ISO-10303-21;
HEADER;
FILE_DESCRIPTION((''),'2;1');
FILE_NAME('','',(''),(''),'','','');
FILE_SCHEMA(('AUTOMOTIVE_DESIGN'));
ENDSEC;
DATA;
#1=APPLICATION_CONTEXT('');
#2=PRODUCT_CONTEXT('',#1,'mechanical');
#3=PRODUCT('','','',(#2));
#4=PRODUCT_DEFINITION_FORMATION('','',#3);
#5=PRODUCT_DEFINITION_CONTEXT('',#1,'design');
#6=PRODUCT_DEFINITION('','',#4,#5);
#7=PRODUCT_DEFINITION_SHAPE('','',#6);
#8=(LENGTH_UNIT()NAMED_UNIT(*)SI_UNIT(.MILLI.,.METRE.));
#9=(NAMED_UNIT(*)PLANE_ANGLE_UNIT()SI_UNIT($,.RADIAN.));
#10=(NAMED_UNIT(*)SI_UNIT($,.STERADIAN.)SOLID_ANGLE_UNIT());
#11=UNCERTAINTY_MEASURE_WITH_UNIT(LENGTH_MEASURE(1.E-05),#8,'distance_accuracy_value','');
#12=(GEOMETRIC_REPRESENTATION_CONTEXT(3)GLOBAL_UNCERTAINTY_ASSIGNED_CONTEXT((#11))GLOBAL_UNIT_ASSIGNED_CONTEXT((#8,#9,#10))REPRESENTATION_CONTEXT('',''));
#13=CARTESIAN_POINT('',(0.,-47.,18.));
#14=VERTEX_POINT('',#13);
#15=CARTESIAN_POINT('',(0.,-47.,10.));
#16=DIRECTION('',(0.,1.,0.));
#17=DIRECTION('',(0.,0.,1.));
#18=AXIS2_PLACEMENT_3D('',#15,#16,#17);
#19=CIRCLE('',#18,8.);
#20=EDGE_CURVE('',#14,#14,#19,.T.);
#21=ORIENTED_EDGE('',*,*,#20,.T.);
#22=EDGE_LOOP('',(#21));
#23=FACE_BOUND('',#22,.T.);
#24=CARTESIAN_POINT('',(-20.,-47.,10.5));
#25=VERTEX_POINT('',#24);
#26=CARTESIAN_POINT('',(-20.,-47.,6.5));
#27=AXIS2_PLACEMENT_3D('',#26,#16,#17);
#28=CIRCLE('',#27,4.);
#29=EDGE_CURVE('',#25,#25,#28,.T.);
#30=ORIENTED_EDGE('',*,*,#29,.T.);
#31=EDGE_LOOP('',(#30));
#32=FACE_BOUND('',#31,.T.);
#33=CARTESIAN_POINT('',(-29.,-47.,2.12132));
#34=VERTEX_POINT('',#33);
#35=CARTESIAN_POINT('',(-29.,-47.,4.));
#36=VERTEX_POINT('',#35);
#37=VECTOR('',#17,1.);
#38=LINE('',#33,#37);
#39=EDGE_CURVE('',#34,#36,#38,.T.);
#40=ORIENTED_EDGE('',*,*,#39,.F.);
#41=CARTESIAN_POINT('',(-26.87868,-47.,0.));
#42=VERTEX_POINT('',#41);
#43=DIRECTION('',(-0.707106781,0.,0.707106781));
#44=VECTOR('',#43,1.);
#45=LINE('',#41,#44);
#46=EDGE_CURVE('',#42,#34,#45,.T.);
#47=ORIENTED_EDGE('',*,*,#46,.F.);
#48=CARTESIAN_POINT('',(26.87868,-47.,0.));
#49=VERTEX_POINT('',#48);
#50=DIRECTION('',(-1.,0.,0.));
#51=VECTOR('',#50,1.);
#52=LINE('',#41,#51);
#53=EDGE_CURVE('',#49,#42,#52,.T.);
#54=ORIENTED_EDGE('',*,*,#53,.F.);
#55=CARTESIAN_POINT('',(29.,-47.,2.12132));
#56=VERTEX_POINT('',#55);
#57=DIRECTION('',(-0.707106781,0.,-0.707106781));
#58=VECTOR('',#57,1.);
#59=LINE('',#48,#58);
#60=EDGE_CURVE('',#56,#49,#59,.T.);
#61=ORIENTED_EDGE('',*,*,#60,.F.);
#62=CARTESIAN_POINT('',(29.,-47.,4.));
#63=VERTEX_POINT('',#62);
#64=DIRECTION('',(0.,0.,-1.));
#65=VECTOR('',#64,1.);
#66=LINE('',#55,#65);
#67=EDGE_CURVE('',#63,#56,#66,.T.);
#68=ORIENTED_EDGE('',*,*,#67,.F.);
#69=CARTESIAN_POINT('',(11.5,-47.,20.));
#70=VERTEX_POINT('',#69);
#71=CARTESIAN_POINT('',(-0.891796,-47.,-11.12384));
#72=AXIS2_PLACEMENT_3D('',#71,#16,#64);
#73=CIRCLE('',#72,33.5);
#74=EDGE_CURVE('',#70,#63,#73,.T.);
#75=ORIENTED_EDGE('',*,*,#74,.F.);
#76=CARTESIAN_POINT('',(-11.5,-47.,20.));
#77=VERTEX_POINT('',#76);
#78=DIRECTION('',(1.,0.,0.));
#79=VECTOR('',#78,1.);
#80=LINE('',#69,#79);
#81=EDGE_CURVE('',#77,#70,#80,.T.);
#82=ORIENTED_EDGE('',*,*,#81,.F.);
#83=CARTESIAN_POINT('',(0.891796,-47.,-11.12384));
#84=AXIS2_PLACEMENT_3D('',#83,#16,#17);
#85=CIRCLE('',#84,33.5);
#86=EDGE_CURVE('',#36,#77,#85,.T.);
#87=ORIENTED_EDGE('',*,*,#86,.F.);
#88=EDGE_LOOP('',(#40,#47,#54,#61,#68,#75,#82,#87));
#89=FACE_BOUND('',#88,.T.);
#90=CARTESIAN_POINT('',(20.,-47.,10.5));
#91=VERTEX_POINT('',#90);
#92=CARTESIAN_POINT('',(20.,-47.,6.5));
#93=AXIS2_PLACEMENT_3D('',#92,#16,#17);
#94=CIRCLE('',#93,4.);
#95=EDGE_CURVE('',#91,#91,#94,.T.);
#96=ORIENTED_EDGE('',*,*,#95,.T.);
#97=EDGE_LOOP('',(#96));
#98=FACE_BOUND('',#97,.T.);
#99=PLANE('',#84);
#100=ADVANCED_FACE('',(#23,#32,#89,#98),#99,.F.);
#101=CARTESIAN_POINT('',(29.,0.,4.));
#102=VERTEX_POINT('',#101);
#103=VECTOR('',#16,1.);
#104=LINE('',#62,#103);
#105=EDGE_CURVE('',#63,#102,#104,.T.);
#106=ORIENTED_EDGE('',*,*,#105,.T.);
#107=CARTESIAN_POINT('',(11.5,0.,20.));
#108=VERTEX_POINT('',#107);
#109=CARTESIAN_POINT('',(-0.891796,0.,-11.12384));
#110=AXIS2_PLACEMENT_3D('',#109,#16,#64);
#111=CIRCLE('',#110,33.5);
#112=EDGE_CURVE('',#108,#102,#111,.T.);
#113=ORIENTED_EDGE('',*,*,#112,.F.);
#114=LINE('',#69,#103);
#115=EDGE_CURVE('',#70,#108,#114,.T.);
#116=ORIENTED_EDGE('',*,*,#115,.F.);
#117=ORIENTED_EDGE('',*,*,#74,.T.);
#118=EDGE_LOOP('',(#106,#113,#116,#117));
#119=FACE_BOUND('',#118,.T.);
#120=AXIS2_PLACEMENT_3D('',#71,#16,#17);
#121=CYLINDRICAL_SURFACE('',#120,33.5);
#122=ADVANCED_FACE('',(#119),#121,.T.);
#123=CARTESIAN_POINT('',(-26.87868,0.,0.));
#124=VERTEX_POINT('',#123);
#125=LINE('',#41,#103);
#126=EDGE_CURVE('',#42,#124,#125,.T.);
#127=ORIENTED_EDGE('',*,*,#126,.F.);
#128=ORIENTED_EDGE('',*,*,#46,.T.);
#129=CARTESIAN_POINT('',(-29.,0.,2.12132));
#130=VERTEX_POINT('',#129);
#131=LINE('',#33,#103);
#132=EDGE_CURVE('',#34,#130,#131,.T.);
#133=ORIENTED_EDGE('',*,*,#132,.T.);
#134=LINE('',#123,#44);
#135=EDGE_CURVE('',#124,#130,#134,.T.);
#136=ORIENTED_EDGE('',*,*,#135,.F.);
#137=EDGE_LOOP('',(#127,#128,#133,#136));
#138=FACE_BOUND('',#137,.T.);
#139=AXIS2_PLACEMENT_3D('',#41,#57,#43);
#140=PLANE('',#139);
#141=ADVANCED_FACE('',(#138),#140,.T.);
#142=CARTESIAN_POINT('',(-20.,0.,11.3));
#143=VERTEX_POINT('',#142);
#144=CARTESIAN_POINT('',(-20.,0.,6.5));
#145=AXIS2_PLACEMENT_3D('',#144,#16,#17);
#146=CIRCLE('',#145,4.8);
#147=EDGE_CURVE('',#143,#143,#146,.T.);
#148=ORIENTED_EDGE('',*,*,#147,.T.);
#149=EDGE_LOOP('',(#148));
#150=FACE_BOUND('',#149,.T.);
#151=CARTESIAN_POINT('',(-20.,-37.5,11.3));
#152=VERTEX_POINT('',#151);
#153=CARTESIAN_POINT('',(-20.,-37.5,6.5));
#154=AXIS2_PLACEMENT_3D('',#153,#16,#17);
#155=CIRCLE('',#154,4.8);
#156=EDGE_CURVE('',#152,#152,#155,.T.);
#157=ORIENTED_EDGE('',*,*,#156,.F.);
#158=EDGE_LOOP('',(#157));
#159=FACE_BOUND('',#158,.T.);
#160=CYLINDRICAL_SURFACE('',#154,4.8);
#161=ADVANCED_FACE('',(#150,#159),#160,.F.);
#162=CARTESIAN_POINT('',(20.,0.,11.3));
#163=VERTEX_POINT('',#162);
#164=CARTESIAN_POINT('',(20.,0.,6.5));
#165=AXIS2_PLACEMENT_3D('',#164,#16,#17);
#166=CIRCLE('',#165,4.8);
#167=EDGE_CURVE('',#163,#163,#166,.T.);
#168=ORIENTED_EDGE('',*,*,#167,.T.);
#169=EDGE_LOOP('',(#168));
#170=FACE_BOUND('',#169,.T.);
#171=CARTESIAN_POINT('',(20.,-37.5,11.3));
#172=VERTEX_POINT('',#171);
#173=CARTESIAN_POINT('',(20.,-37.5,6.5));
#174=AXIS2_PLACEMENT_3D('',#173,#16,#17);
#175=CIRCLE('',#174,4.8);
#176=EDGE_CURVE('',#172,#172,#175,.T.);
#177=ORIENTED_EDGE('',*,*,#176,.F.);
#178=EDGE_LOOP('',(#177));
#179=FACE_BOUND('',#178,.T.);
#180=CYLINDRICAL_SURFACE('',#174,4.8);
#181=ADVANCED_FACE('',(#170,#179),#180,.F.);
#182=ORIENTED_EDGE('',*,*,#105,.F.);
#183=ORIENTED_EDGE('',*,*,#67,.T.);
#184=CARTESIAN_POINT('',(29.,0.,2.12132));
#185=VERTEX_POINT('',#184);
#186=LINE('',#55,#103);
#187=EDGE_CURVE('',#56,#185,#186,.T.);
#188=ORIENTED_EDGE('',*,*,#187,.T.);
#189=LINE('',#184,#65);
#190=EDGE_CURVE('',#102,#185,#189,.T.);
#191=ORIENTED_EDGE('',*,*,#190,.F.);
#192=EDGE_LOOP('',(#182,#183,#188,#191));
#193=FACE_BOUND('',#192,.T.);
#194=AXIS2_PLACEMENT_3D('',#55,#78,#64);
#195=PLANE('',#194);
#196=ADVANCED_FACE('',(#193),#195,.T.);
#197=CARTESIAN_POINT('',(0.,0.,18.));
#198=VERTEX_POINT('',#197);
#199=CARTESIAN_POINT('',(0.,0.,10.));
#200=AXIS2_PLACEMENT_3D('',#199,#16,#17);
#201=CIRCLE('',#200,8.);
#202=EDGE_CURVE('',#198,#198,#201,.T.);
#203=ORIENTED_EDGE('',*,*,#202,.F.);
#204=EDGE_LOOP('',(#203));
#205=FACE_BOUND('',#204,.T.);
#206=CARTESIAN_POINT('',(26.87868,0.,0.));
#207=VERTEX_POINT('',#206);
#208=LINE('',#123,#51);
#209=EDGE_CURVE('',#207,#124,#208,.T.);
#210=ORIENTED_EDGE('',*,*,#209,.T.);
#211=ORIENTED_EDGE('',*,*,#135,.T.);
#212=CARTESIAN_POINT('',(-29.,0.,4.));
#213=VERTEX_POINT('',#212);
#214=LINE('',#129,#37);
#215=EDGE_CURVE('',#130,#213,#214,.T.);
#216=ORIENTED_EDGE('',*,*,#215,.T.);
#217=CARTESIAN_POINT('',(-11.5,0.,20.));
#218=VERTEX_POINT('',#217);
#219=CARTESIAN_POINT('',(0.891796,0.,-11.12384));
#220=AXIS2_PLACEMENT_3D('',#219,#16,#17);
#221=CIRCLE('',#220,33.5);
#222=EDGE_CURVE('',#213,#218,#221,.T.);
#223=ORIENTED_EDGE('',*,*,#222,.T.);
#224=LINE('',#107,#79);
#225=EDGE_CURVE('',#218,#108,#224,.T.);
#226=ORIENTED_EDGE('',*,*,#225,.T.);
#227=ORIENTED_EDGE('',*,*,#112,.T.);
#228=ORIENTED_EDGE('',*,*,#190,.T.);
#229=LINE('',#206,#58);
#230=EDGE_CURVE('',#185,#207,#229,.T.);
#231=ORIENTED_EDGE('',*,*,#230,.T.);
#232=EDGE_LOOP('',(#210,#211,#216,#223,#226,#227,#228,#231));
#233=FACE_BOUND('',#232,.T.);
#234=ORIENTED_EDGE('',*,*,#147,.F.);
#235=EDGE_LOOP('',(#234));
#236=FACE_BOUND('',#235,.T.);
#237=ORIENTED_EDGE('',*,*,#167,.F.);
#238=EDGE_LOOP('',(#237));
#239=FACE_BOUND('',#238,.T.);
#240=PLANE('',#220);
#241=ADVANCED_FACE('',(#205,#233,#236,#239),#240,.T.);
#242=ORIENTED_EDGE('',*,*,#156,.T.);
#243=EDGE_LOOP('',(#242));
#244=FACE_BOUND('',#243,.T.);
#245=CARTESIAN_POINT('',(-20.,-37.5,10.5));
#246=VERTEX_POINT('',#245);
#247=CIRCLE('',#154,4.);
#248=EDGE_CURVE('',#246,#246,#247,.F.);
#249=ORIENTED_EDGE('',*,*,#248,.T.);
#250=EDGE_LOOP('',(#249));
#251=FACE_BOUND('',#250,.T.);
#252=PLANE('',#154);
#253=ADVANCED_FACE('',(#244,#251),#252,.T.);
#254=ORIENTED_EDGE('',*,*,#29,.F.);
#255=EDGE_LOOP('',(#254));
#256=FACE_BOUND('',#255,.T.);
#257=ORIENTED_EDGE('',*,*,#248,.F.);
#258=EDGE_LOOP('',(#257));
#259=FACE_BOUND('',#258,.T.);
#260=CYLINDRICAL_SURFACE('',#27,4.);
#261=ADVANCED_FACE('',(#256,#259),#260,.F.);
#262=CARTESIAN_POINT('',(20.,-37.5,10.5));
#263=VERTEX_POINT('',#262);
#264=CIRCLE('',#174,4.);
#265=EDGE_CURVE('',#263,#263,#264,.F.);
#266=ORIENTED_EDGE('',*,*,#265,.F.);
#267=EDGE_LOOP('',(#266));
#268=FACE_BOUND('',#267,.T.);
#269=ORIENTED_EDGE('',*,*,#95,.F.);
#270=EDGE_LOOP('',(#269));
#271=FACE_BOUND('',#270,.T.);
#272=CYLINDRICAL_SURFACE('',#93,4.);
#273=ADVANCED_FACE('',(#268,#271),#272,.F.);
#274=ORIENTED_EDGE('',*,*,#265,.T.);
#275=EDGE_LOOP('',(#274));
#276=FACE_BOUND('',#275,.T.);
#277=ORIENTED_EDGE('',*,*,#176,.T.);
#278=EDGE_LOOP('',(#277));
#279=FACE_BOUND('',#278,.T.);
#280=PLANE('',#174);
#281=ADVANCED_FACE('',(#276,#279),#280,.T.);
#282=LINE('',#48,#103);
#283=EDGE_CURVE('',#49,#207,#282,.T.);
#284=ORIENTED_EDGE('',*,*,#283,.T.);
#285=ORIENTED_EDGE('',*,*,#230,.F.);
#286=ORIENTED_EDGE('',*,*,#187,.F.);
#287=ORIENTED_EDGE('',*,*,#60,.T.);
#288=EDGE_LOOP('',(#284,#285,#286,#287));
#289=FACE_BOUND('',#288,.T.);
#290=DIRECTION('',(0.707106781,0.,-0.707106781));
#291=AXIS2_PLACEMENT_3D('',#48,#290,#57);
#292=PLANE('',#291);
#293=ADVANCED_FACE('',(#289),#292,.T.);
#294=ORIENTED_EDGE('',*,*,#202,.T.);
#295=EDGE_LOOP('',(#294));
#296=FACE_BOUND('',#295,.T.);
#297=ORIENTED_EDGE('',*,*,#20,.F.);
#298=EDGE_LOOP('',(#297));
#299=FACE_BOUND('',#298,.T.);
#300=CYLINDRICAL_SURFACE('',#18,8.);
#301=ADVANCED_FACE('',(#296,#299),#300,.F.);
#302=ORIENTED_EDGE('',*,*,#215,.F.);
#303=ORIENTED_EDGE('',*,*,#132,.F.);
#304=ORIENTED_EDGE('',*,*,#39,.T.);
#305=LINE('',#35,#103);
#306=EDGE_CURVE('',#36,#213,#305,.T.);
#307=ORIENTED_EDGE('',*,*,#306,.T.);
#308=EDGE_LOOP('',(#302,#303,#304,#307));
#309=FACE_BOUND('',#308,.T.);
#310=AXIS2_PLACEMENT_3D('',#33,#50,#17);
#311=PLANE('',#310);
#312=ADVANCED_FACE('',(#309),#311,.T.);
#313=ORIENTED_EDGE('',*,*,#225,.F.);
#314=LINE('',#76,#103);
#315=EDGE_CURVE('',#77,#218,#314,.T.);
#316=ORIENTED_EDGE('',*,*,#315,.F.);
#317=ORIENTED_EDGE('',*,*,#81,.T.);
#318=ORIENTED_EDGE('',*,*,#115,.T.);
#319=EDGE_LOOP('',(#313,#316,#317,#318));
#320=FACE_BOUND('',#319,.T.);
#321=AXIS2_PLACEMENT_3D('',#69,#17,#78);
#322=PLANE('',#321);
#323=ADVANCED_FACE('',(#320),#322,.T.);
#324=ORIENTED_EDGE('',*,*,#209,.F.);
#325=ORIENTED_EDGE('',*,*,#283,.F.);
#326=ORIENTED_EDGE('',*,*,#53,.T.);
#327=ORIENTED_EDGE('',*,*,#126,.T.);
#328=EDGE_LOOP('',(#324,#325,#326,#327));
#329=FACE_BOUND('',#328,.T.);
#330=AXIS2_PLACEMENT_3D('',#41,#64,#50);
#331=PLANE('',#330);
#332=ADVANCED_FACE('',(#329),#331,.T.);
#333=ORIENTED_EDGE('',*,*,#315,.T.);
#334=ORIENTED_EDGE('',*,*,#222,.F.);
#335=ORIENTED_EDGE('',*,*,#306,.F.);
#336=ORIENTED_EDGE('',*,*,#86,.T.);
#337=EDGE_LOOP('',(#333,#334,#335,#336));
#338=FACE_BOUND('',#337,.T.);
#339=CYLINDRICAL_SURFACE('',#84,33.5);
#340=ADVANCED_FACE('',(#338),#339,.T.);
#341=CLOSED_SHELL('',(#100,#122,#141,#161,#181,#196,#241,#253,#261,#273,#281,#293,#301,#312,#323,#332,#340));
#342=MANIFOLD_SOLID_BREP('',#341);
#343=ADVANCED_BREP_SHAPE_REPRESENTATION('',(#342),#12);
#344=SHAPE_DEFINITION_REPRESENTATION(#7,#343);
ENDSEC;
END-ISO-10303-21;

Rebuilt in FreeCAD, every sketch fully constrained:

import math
import FreeCAD as App
import Part
import Sketcher

V = App.Vector
Q = App.Units.Quantity

doc = App.newDocument("Part")
params = doc.addObject("Spreadsheet::Sheet", "Params")
for row, (alias, value) in enumerate([
    ("sketch1_radius", "33.5 mm"),
    ("sketch1_width", "23 mm"),
    ("sketch1_length", "3 mm"),
    ("pad1_length", "47 mm"),
    ("sketch2_diameter", "8 mm"),
    ("sketch2_diameter2", "16 mm"),
    ("sketch3_diameter", "9.6 mm"),
    ("pocket2_length", "37.5 mm"),
], start=1):
    params.set(f"A{row}", alias)
    params.set(f"B{row}", "=" + value)
    params.setAlias(f"B{row}", alias)

body = doc.addObject("PartDesign::Body", "Body")

# Sketch on XZ plane
sketch1 = doc.addObject("Sketcher::SketchObject", "Sketch")
body.addObject(sketch1)
sketch1.AttachmentSupport = (doc.XZ_Plane, [""])
sketch1.MapMode = "FlatFace"
sketch1.addGeometry(Part.LineSegment(V(26.9, 0, 0), V(-26.9, 0, 0)), False)
sketch1.addGeometry(Part.LineSegment(V(-26.9, 0, 0), V(-29, 2.1, 0)), False)
sketch1.addGeometry(Part.LineSegment(V(-29, 2.1, 0), V(-29, 4, 0)), False)
sketch1.addGeometry(Part.ArcOfCircle(Part.Circle(V(0.9, -11.1, 0), V(0, 0, 1), 33.5), math.radians(112), math.radians(153)), False)
sketch1.addGeometry(Part.LineSegment(V(-11.5, 20, 0), V(11.5, 20, 0)), False)
sketch1.addGeometry(Part.ArcOfCircle(Part.Circle(V(-0.9, -11.1, 0), V(0, 0, 1), 33.5), math.radians(27), math.radians(68)), False)
sketch1.addGeometry(Part.LineSegment(V(29, 4, 0), V(29, 2.1, 0)), False)
sketch1.addGeometry(Part.LineSegment(V(29, 2.1, 0), V(26.9, 0, 0)), False)
sketch1.addConstraint(Sketcher.Constraint("Coincident", 0, 2, 1, 1))
sketch1.addConstraint(Sketcher.Constraint("Coincident", 1, 2, 2, 1))
sketch1.addConstraint(Sketcher.Constraint("Coincident", 2, 2, 3, 2))
sketch1.addConstraint(Sketcher.Constraint("Coincident", 3, 1, 4, 1))
sketch1.addConstraint(Sketcher.Constraint("Coincident", 4, 2, 5, 2))
sketch1.addConstraint(Sketcher.Constraint("Coincident", 5, 1, 6, 1))
sketch1.addConstraint(Sketcher.Constraint("Coincident", 6, 2, 7, 1))
sketch1.addConstraint(Sketcher.Constraint("Coincident", 7, 2, 0, 1))
sketch1.addConstraint(Sketcher.Constraint("Horizontal", 0))
sketch1.addConstraint(Sketcher.Constraint("Vertical", 2))
sketch1.addConstraint(Sketcher.Constraint("Horizontal", 4))
sketch1.addConstraint(Sketcher.Constraint("Vertical", 6))
sketch1.addConstraint(Sketcher.Constraint("Equal", 3, 5))
sketch1.addConstraint(Sketcher.Constraint("Symmetric", 0, 2, 7, 2, -1, 1))
sketch1.addConstraint(Sketcher.Constraint("Symmetric", 3, 3, 5, 3, -2))
sketch1.addConstraint(Sketcher.Constraint("Symmetric", 1, 2, 6, 2, -2))
sketch1.addConstraint(Sketcher.Constraint("Perpendicular", 1, 7))
sketch1.addConstraint(Sketcher.Constraint("Radius", 3, Q("33.5 mm")))
sketch1.addConstraint(Sketcher.Constraint("DistanceX", 4, 1, 4, 2, Q("23 mm")))
sketch1.addConstraint(Sketcher.Constraint("Distance", 1, Q("3 mm")))
sketch1.addConstraint(Sketcher.Constraint("DistanceX", 1, 2, -1, 1, Q("29 mm")))
sketch1.addConstraint(Sketcher.Constraint("DistanceY", -1, 1, 2, 2, Q("4 mm")))
sketch1.addConstraint(Sketcher.Constraint("DistanceY", -1, 1, 3, 1, Q("20 mm")))
sketch1.setExpression("Constraints[17]", "Params.sketch1_radius")
sketch1.setExpression("Constraints[18]", "Params.sketch1_width")
sketch1.setExpression("Constraints[19]", "Params.sketch1_length")
pad1 = doc.addObject("PartDesign::Pad", "Pad")
body.addObject(pad1)
pad1.Profile = sketch1
pad1.setExpression("Length", "Params.pad1_length")

# Sketch on XZ plane
sketch2 = doc.addObject("Sketcher::SketchObject", "Sketch001")
body.addObject(sketch2)
sketch2.AttachmentSupport = (doc.XZ_Plane, [""])
sketch2.MapMode = "FlatFace"
sketch2.addGeometry(Part.Circle(V(-20, 6.5, 0), V(0, 0, 1), 4), False)
sketch2.addGeometry(Part.Circle(V(0, 10, 0), V(0, 0, 1), 8), False)
sketch2.addGeometry(Part.Circle(V(20, 6.5, 0), V(0, 0, 1), 4), False)
sketch2.addConstraint(Sketcher.Constraint("Equal", 0, 2))
sketch2.addConstraint(Sketcher.Constraint("Symmetric", 0, 3, 2, 3, -2))
sketch2.addConstraint(Sketcher.Constraint("PointOnObject", 1, 3, -2))
sketch2.addConstraint(Sketcher.Constraint("Diameter", 0, Q("8 mm")))
sketch2.addConstraint(Sketcher.Constraint("Diameter", 1, Q("16 mm")))
sketch2.addConstraint(Sketcher.Constraint("DistanceX", 0, 3, -1, 1, Q("20 mm")))
sketch2.addConstraint(Sketcher.Constraint("DistanceY", -1, 1, 1, 3, Q("10 mm")))
sketch2.addConstraint(Sketcher.Constraint("DistanceY", -1, 1, 0, 3, Q("6.5 mm")))
sketch2.setExpression("Constraints[3]", "Params.sketch2_diameter")
sketch2.setExpression("Constraints[4]", "Params.sketch2_diameter2")
pocket1 = doc.addObject("PartDesign::Pocket", "Pocket")
body.addObject(pocket1)
pocket1.Profile = sketch2
pocket1.Type = "ThroughAll"
pocket1.Reversed = True

# Sketch on XZ plane
sketch3 = doc.addObject("Sketcher::SketchObject", "Sketch002")
body.addObject(sketch3)
sketch3.AttachmentSupport = (doc.XZ_Plane, [""])
sketch3.MapMode = "FlatFace"
sketch3.addGeometry(Part.Circle(V(-20, 6.5, 0), V(0, 0, 1), 4.8), False)
sketch3.addGeometry(Part.Circle(V(20, 6.5, 0), V(0, 0, 1), 4.8), False)
sketch3.addConstraint(Sketcher.Constraint("Equal", 0, 1))
sketch3.addConstraint(Sketcher.Constraint("Symmetric", 0, 3, 1, 3, -2))
sketch3.addConstraint(Sketcher.Constraint("Diameter", 0, Q("9.6 mm")))
sketch3.addConstraint(Sketcher.Constraint("DistanceX", 0, 3, -1, 1, Q("20 mm")))
sketch3.addConstraint(Sketcher.Constraint("DistanceY", -1, 1, 0, 3, Q("6.5 mm")))
sketch3.setExpression("Constraints[2]", "Params.sketch3_diameter")
pocket2 = doc.addObject("PartDesign::Pocket", "Pocket001")
body.addObject(pocket2)
pocket2.Profile = sketch3
pocket2.setExpression("Length", "Params.pocket2_length")
pocket2.Reversed = True

doc.recompute()
